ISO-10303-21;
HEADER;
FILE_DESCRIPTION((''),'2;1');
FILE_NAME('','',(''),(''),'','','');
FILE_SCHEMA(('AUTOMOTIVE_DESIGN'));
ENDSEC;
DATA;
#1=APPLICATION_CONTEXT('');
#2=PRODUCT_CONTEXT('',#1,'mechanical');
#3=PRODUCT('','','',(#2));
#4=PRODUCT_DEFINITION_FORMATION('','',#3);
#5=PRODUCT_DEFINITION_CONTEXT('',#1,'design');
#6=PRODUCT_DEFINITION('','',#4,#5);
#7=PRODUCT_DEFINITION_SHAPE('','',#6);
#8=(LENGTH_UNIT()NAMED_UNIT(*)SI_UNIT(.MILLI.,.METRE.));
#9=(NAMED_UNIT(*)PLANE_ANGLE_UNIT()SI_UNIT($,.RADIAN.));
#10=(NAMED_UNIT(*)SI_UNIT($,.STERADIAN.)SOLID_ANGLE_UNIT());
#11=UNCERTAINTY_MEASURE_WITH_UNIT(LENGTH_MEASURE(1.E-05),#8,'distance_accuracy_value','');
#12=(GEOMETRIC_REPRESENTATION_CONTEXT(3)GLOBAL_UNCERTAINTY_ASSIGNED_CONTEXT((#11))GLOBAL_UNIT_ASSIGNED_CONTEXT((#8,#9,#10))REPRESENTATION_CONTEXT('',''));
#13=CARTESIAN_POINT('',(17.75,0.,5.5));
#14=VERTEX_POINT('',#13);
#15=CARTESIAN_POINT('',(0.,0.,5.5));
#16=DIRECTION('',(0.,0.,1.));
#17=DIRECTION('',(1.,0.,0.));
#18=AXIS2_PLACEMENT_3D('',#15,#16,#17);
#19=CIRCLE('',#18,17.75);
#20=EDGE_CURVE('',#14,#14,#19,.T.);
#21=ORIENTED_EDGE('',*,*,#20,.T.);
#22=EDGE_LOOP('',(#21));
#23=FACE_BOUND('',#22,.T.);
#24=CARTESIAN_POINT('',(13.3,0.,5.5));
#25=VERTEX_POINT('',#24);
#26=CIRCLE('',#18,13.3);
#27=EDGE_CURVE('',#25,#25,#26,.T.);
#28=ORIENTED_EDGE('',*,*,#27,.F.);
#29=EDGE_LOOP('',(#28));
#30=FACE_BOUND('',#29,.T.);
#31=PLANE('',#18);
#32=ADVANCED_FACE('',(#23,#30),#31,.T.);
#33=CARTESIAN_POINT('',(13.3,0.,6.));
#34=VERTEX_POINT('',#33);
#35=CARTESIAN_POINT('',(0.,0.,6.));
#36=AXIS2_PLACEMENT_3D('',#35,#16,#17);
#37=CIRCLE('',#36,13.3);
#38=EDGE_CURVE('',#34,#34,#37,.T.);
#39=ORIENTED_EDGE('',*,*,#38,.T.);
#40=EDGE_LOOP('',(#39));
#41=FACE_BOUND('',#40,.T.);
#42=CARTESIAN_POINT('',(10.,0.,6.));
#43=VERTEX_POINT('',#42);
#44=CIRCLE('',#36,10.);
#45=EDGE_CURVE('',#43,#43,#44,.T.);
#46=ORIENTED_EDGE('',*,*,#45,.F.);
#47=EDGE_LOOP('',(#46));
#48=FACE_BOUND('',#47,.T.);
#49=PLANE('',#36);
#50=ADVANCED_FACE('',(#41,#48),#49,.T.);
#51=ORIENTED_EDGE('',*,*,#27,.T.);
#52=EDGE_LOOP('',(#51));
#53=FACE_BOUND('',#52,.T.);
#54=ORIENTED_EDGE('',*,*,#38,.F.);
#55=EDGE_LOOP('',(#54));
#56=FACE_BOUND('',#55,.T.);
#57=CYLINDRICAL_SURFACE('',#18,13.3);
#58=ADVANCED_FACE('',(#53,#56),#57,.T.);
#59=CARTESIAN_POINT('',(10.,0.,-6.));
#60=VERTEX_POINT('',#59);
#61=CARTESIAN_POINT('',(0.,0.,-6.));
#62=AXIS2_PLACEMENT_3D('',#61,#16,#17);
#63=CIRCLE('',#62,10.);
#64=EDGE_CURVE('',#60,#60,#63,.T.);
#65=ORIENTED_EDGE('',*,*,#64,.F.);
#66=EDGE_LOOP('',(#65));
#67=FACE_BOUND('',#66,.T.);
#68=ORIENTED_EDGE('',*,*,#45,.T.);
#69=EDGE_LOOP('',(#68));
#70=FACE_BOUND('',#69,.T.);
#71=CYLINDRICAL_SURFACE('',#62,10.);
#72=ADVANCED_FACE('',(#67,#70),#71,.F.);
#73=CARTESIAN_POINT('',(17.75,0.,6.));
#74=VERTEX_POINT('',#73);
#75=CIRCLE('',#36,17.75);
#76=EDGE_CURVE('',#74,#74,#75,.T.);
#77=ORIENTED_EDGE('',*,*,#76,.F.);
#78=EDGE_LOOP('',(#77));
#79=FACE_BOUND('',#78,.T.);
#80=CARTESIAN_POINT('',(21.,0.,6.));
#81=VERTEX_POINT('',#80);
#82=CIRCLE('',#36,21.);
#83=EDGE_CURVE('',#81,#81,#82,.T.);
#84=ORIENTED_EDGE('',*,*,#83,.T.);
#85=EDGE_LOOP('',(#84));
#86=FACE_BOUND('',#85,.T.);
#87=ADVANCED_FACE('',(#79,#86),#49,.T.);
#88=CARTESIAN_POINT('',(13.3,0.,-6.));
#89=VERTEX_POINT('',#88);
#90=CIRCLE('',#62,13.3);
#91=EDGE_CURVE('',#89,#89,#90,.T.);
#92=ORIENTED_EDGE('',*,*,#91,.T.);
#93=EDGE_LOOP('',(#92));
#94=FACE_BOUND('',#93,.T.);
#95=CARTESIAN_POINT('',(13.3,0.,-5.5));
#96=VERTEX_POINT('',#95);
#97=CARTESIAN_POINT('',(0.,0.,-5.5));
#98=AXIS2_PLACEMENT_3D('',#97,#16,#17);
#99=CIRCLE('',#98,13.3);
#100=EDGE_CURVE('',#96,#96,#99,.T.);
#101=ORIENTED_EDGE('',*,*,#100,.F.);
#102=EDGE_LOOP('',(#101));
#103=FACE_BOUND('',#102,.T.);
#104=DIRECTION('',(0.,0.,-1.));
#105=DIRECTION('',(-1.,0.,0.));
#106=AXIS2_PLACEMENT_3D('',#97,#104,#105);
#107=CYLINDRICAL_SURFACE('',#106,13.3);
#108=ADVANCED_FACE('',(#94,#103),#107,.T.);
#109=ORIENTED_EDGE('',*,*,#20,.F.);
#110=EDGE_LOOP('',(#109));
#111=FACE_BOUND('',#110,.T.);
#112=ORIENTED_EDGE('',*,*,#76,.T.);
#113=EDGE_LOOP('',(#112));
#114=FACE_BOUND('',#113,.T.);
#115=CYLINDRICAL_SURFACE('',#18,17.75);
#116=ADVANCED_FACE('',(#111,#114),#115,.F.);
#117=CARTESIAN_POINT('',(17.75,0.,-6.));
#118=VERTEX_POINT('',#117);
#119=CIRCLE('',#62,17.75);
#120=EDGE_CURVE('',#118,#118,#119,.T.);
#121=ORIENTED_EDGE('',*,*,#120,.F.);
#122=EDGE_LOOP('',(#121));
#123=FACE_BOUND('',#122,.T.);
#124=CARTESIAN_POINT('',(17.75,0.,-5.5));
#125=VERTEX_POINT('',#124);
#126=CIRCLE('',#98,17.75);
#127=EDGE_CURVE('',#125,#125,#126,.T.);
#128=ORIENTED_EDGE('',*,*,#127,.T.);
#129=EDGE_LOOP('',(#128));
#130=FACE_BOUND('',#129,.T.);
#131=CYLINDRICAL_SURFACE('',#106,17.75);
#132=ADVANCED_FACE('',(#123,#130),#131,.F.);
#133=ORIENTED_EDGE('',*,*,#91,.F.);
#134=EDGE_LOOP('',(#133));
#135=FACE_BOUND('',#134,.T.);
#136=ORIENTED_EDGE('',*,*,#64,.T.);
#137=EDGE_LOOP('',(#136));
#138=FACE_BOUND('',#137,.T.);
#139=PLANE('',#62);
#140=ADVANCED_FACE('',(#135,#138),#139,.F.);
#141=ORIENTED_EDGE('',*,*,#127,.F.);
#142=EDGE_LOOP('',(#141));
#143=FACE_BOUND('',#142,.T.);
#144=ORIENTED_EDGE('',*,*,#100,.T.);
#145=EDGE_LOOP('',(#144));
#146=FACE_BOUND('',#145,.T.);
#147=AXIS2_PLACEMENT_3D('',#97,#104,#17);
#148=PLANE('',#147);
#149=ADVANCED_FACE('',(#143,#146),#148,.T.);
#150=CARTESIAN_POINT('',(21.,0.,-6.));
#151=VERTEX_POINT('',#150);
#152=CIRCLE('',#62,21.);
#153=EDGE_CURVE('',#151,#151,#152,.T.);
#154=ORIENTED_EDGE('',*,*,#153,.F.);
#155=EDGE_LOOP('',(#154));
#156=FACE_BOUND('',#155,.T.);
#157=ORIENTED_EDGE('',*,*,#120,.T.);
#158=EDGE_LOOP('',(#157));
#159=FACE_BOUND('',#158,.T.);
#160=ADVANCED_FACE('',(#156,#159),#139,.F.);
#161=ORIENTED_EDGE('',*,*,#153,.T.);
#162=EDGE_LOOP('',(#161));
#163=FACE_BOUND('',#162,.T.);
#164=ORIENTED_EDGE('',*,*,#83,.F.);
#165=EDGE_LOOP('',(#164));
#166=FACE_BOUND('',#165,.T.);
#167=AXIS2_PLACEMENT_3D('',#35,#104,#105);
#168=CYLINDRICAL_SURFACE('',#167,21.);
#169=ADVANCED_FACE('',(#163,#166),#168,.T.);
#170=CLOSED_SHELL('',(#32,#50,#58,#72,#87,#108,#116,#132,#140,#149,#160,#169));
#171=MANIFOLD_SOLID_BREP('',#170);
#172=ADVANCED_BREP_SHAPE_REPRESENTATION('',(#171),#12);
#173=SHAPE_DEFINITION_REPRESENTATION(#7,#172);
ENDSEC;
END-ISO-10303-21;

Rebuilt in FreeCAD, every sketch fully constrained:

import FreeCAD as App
import Part
import Sketcher
from FreeCAD import Vector

doc = App.newDocument("Part")
params = doc.addObject("Spreadsheet::Sheet", "Params")
for row, (alias, value) in enumerate([
    ("sketch1_diameter", "42 mm"),
    ("pad1_length", "12 mm"),
    ("sketch2_diameter", "20 mm"),
    ("sketch3_diameter", "35.5 mm"),
    ("sketch3_diameter2", "26.6 mm"),
    ("pocket2_length", "0.5 mm"),
], start=1):
    params.set(f"A{row}", alias)
    params.set(f"B{row}", "=" + value)
    params.setAlias(f"B{row}", alias)

body = doc.addObject("PartDesign::Body", "Body")

sketch1 = doc.addObject("Sketcher::SketchObject", "Sketch")
body.addObject(sketch1)
sketch1.AttachmentSupport = (doc.XY_Plane, [""])
sketch1.MapMode = "FlatFace"
sketch1.addGeometry(Part.Circle(Vector(0, 0, 0), Vector(0, 0, 1), 21), False)
sketch1.addConstraint([
    Sketcher.Constraint("Coincident", 0, 3, -1, 1),
    Sketcher.Constraint("Diameter", 0, 42.0),
])
sketch1.setExpression("Constraints[1]", "Params.sketch1_diameter")
pad1 = doc.addObject("PartDesign::Pad", "Pad")
body.addObject(pad1)
pad1.Profile = sketch1
pad1.setExpression("Length", "Params.pad1_length")
pad1.Midplane = True

sketch2 = doc.addObject("Sketcher::SketchObject", "Sketch001")
body.addObject(sketch2)
sketch2.AttachmentSupport = (doc.XY_Plane, [""])
sketch2.MapMode = "FlatFace"
sketch2.AttachmentOffset = App.Placement(Vector(0, 0, 6), App.Rotation())
sketch2.addGeometry(Part.Circle(Vector(0, 0, 0), Vector(0, 0, 1), 10), False)
sketch2.addConstraint([
    Sketcher.Constraint("Coincident", 0, 3, -1, 1),
    Sketcher.Constraint("Diameter", 0, 20.0),
])
sketch2.setExpression("Constraints[1]", "Params.sketch2_diameter")
pocket1 = doc.addObject("PartDesign::Pocket", "Pocket")
body.addObject(pocket1)
pocket1.Profile = sketch2
pocket1.Type = "ThroughAll"

sketch3 = doc.addObject("Sketcher::SketchObject", "Sketch002")
body.addObject(sketch3)
sketch3.AttachmentSupport = (doc.XY_Plane, [""])
sketch3.MapMode = "FlatFace"
sketch3.AttachmentOffset = App.Placement(Vector(0, 0, 6), App.Rotation())
sketch3.addGeometry([
    Part.Circle(Vector(0, 0, 0), Vector(0, 0, 1), 18),
    Part.Circle(Vector(0, 0, 0), Vector(0, 0, 1), 13),
], False)
sketch3.addConstraint([
    Sketcher.Constraint("Coincident", 0, 3, -1, 1),
    Sketcher.Constraint("Coincident", 1, 3, -1, 1),
    Sketcher.Constraint("Diameter", 0, 35.5),
    Sketcher.Constraint("Diameter", 1, 26.6),
])
sketch3.setExpression("Constraints[2]", "Params.sketch3_diameter")
sketch3.setExpression("Constraints[3]", "Params.sketch3_diameter2")
pocket2 = doc.addObject("PartDesign::Pocket", "Pocket001")
body.addObject(pocket2)
pocket2.Profile = sketch3
pocket2.setExpression("Length", "Params.pocket2_length")
doc.recompute()

mirrored = doc.addObject("PartDesign::Mirrored", "Mirrored")
body.addObject(mirrored)
mirrored.Originals = [pocket2]
mirrored.MirrorPlane = (doc.XY_Plane, [""])
body.Tip = mirrored

doc.recompute()
